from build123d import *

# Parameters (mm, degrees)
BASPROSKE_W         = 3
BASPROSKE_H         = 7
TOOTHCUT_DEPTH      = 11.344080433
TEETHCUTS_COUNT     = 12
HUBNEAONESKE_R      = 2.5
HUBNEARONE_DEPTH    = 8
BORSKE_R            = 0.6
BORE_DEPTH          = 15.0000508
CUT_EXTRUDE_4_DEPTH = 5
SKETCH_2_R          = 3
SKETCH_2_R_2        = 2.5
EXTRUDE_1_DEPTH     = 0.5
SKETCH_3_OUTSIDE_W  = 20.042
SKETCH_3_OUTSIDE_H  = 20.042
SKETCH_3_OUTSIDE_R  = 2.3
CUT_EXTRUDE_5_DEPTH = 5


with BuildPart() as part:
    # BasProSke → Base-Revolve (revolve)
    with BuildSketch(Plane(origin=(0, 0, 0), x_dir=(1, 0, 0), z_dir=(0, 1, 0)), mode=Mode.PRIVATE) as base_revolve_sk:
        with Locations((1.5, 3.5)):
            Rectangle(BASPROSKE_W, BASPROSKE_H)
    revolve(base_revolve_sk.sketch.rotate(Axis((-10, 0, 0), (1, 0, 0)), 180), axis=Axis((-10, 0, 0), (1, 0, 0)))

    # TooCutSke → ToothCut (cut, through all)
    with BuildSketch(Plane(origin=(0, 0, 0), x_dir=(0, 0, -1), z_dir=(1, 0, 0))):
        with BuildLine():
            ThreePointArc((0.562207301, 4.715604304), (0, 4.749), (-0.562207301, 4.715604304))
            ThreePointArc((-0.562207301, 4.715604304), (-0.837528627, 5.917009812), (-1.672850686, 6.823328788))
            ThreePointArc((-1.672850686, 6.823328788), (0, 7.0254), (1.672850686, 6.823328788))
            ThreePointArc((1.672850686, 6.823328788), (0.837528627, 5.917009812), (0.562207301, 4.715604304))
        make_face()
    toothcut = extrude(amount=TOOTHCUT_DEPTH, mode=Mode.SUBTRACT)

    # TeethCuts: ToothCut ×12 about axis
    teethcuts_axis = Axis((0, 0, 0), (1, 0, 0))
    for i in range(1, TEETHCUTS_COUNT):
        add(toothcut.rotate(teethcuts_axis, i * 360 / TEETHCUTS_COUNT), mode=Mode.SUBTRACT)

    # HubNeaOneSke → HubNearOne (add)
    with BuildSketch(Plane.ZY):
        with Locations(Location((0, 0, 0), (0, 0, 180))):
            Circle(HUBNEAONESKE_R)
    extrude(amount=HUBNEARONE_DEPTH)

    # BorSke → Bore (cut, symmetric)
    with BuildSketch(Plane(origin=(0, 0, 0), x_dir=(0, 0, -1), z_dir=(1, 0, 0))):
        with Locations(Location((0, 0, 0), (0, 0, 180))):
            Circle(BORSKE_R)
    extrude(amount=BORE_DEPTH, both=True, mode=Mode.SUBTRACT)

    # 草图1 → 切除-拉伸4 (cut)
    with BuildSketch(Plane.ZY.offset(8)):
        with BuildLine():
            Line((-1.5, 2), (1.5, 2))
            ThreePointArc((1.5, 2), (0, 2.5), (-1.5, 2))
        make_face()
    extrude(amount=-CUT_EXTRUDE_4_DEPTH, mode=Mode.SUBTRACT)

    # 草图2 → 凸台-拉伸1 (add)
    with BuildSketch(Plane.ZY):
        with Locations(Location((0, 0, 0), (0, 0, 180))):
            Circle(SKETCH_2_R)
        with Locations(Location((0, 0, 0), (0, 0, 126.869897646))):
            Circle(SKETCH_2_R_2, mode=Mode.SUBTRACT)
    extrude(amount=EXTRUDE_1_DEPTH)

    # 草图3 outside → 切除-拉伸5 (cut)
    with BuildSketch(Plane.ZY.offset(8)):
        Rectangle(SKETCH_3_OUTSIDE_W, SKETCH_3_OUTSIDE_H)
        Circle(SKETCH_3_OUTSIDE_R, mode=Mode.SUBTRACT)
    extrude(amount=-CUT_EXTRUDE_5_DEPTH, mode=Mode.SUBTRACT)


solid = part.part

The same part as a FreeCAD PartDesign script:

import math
import FreeCAD as App
import Part
import Sketcher
from FreeCAD import Vector


def add_polygon(sketch, points):
    """Adds a closed chain of lines whose ends are joined by coincident constraints."""
    first, n = sketch.GeometryCount, len(points)
    for a, b in zip(points, points[1:] + points[:1]):
        sketch.addGeometry(Part.LineSegment(App.Vector(*a, 0), App.Vector(*b, 0)), False)
    for i in range(n):
        sketch.addConstraint(Sketcher.Constraint("Coincident", first + i, 2, first + (i + 1) % n, 1))

doc = App.newDocument("Part")
body = doc.addObject("PartDesign::Body", "Body")

# Sketch on XZ plane
sketch1 = body.newObject("Sketcher::SketchObject", "Sketch")
sketch1.AttachmentSupport = (doc.getObject("XZ_Plane"), [""])
sketch1.MapMode = "FlatFace"
add_polygon(sketch1, [(0, -7), (0, 0), (3, 0), (3, -7)])  # lines 0-3
sketch1.addConstraint([
    Sketcher.Constraint("Vertical", 0),
    Sketcher.Constraint("Horizontal", 1),
    Sketcher.Constraint("Vertical", 2),
    Sketcher.Constraint("Horizontal", 3),
    Sketcher.Constraint("Coincident", 0, 2, -1, 1),
    Sketcher.Constraint("DistanceX", 1, 1, 1, 2, 3.0),
    Sketcher.Constraint("DistanceY", 0, 1, 0, 2, 7.0),
])
revolution = body.newObject("PartDesign::Revolution", "Revolution")
revolution.Profile = sketch1
revolution.ReferenceAxis = (sketch1, ["H_Axis"])
revolution.Angle = 360

# Sketch on YZ plane
sketch2 = body.newObject("Sketcher::SketchObject", "Sketch001")
sketch2.AttachmentSupport = (doc.getObject("YZ_Plane"), [""])
sketch2.MapMode = "FlatFace"
sketch2.addGeometry([
    Part.ArcOfCircle(Part.Circle(Vector(0, 0, 0), Vector(0, 0, 1), 4.7), math.radians(-6.8), math.radians(6.8)),
    Part.ArcOfCircle(Part.Circle(Vector(4.8, -3, 0), Vector(0, 0, 1), 2.4), math.radians(32), math.radians(92)),
    Part.ArcOfCircle(Part.Circle(Vector(0, 0, 0), Vector(0, 0, 1), 7), math.radians(-14), math.radians(14)),
    Part.ArcOfCircle(Part.Circle(Vector(4.8, 3, 0), Vector(0, 0, 1), 2.4), math.radians(-92), math.radians(-32)),
], False)
sketch2.addConstraint([
    Sketcher.Constraint("Coincident", 0, 1, 1, 2),
    Sketcher.Constraint("Coincident", 1, 1, 2, 1),
    Sketcher.Constraint("Coincident", 2, 2, 3, 2),
    Sketcher.Constraint("Coincident", 3, 1, 0, 2),
    Sketcher.Constraint("Coincident", 0, 3, -1, 1),
    Sketcher.Constraint("Coincident", 2, 3, -1, 1),
    Sketcher.Constraint("Equal", 1, 3),
    Sketcher.Constraint("Symmetric", 1, 3, 3, 3, -1),
    Sketcher.Constraint("Radius", 1, 2.4),
    Sketcher.Constraint("Radius", 0, 4.749),
    Sketcher.Constraint("Radius", 2, 7.0254),
    Sketcher.Constraint("DistanceY", 1, 1, 2, 2, 3.345701),
    Sketcher.Constraint("DistanceX", -1, 1, 1, 3, 4.798181),
])
pocket1 = body.newObject("PartDesign::Pocket", "Pocket")
pocket1.Profile = sketch2
pocket1.Type = "ThroughAll"
pocket1.Reversed = True
doc.recompute()

polarpattern = body.newObject("PartDesign::PolarPattern", "PolarPattern")
polarpattern.Originals = [pocket1]
polarpattern.Axis = (doc.getObject("X_Axis"), [""])
polarpattern.Angle = 360
polarpattern.Occurrences = 12
body.Tip = polarpattern

# Sketch on YZ plane
sketch3 = body.newObject("Sketcher::SketchObject", "Sketch002")
sketch3.AttachmentSupport = (doc.getObject("YZ_Plane"), [""])
sketch3.MapMode = "FlatFace"
sketch3.addGeometry(Part.Circle(Vector(0, 0, 0), Vector(0, 0, 1), 2.5), False)
sketch3.addConstraint([
    Sketcher.Constraint("Coincident", 0, 3, -1, 1),
    Sketcher.Constraint("Diameter", 0, 5.0),
])
pad1 = body.newObject("PartDesign::Pad", "Pad")
pad1.Profile = sketch3
pad1.Length = 8
pad1.Reversed = True

# Sketch on YZ plane
sketch4 = body.newObject("Sketcher::SketchObject", "Sketch003")
sketch4.AttachmentSupport = (doc.getObject("YZ_Plane"), [""])
sketch4.MapMode = "FlatFace"
sketch4.addGeometry(Part.Circle(Vector(0, 0, 0), Vector(0, 0, 1), 0.6), False)
sketch4.addConstraint([
    Sketcher.Constraint("Coincident", 0, 3, -1, 1),
    Sketcher.Constraint("Diameter", 0, 1.2),
])
pocket2 = body.newObject("PartDesign::Pocket", "Pocket001")
pocket2.Profile = sketch4
pocket2.Length = 30.000102
pocket2.Midplane = True

# Sketch on YZ plane
sketch5 = body.newObject("Sketcher::SketchObject", "Sketch004")
sketch5.AttachmentSupport = (doc.getObject("YZ_Plane"), [""])
sketch5.MapMode = "FlatFace"
sketch5.AttachmentOffset = App.Placement(Vector(0, 0, -8), App.Rotation())
sketch5.addGeometry([
    Part.LineSegment(Vector(2, -1.5, 0), Vector(2, 1.5, 0)),
    Part.ArcOfCircle(Part.Circle(Vector(0, 0, 0), Vector(0, 0, 1), 2.5), math.radians(-37), math.radians(37)),
], False)
sketch5.addConstraint([
    Sketcher.Constraint("Coincident", 0, 1, 1, 1),
    Sketcher.Constraint("Coincident", 1, 2, 0, 2),
    Sketcher.Constraint("Vertical", 0),
    Sketcher.Constraint("Coincident", 1, 3, -1, 1),
    Sketcher.Constraint("Radius", 1, 2.5),
    Sketcher.Constraint("DistanceY", 0, 1, 0, 2, 3.0),
])
pocket3 = body.newObject("PartDesign::Pocket", "Pocket002")
pocket3.Profile = sketch5
pocket3.Length = 5
pocket3.Reversed = True

# Sketch on YZ plane
sketch6 = body.newObject("Sketcher::SketchObject", "Sketch005")
sketch6.AttachmentSupport = (doc.getObject("YZ_Plane"), [""])
sketch6.MapMode = "FlatFace"
sketch6.addGeometry([
    Part.Circle(Vector(0, 0, 0), Vector(0, 0, 1), 3),
    Part.Circle(Vector(0, 0, 0), Vector(0, 0, 1), 2.5),
], False)
sketch6.addConstraint([
    Sketcher.Constraint("Coincident", 0, 3, -1, 1),
    Sketcher.Constraint("Coincident", 1, 3, -1, 1),
    Sketcher.Constraint("Diameter", 0, 6.0),
    Sketcher.Constraint("Diameter", 1, 5.0),
])
pad2 = body.newObject("PartDesign::Pad", "Pad001")
pad2.Profile = sketch6
pad2.Length = 0.5
pad2.Reversed = True

# Sketch on YZ plane
sketch7 = body.newObject("Sketcher::SketchObject", "Sketch006")
sketch7.AttachmentSupport = (doc.getObject("YZ_Plane"), [""])
sketch7.MapMode = "FlatFace"
sketch7.AttachmentOffset = App.Placement(Vector(0, 0, -8), App.Rotation())
add_polygon(sketch7, [(10, -10), (-10, -10), (-10, 10), (10, 10)])  # lines 0-3
sketch7.addGeometry(Part.Circle(Vector(0, 0, 0), Vector(0, 0, 1), 2.3), False)  # 4
sketch7.addConstraint([
    Sketcher.Constraint("Horizontal", 0),
    Sketcher.Constraint("Vertical", 1),
    Sketcher.Constraint("Horizontal", 2),
    Sketcher.Constraint("Vertical", 3),
    Sketcher.Constraint("Coincident", 4, 3, -1, 1),
    Sketcher.Constraint("Symmetric", 0, 2, 2, 2, -1, 1),
    Sketcher.Constraint("Equal", 2, 1),
    Sketcher.Constraint("Diameter", 4, 4.6),
    Sketcher.Constraint("DistanceX", 0, 2, 0, 1, 20.042),
])
pocket4 = body.newObject("PartDesign::Pocket", "Pocket003")
pocket4.Profile = sketch7
pocket4.Length = 5
pocket4.Reversed = True

doc.recompute()
